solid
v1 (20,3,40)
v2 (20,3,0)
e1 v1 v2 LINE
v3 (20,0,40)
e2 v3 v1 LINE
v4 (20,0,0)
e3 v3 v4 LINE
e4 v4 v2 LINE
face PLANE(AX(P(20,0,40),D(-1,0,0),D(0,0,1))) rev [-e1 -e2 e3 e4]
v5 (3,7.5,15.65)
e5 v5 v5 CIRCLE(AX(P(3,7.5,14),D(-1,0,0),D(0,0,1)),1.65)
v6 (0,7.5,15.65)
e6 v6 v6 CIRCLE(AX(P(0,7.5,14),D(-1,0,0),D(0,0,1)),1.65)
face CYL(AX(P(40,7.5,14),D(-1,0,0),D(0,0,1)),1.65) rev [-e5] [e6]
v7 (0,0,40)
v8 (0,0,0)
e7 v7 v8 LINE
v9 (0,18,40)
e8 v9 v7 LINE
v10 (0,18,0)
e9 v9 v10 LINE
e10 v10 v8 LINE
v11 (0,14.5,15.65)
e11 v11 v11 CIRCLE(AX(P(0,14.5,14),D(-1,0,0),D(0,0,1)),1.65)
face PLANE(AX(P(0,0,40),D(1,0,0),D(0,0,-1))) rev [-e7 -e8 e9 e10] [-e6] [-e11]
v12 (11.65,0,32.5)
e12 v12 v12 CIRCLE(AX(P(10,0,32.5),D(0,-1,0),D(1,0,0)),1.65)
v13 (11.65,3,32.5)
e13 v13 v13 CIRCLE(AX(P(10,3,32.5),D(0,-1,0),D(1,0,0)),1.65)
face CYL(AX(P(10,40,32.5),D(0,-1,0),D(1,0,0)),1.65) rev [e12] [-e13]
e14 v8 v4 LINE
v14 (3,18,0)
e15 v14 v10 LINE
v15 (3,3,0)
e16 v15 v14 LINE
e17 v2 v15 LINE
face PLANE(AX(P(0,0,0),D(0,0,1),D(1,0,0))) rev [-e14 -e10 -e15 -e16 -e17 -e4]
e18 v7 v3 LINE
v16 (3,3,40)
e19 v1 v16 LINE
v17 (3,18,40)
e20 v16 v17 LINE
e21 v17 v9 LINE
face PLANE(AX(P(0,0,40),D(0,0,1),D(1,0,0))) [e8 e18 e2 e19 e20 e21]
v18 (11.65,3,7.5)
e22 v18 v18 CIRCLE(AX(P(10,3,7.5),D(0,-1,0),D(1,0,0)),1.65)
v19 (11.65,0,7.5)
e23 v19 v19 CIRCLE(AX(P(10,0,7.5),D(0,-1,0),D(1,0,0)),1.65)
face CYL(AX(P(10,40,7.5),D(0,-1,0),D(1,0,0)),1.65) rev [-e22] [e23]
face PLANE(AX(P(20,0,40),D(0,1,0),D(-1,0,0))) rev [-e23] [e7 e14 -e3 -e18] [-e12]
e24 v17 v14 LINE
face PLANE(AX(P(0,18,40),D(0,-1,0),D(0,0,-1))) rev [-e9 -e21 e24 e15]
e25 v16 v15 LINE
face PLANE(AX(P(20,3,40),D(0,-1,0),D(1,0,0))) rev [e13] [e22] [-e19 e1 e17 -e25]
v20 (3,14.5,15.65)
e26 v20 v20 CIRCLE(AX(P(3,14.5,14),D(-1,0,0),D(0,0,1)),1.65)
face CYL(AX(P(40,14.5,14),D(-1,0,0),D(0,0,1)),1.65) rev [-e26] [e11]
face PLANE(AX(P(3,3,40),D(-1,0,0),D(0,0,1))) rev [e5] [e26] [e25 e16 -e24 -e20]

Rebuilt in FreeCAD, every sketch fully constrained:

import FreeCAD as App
import Part
import Sketcher

V = App.Vector
Q = App.Units.Quantity


def add_polygon(sketch, points):
    """Adds a closed chain of lines whose ends are joined by coincident constraints."""
    first, n = sketch.GeometryCount, len(points)
    for a, b in zip(points, points[1:] + points[:1]):
        sketch.addGeometry(Part.LineSegment(App.Vector(*a, 0), App.Vector(*b, 0)), False)
    for i in range(n):
        sketch.addConstraint(Sketcher.Constraint("Coincident", first + i, 2, first + (i + 1) % n, 1))

doc = App.newDocument("Part")
body = doc.addObject("PartDesign::Body", "Body")

sketch1 = doc.addObject("Sketcher::SketchObject", "Sketch")
body.addObject(sketch1)
sketch1.AttachmentSupport = (doc.XY_Plane, [""])
sketch1.MapMode = "FlatFace"
add_polygon(sketch1, [(0, 0), (20, 0), (20, 3), (3, 3), (3, 18), (0, 18)])
sketch1.addConstraint([
    Sketcher.Constraint("Horizontal", 0),
    Sketcher.Constraint("Vertical", 1),
    Sketcher.Constraint("Horizontal", 2),
    Sketcher.Constraint("Vertical", 3),
    Sketcher.Constraint("Horizontal", 4),
    Sketcher.Constraint("Vertical", 5),
    Sketcher.Constraint("Coincident", 5, 2, -1, 1),
    Sketcher.Constraint("Equal", 4, 1),
    Sketcher.Constraint("DistanceX", 0, 1, 0, 2, Q("20 mm")),
    Sketcher.Constraint("DistanceX", 2, 2, 2, 1, Q("17 mm")),
    Sketcher.Constraint("DistanceY", 3, 1, 3, 2, Q("15 mm")),
])
pad1 = doc.addObject("PartDesign::Pad", "Pad")
body.addObject(pad1)
pad1.Profile = sketch1
pad1.Length = 40

sketch2 = doc.addObject("Sketcher::SketchObject", "Sketch001")
body.addObject(sketch2)
sketch2.AttachmentSupport = (doc.XZ_Plane, [""])
sketch2.MapMode = "FlatFace"
sketch2.addGeometry([
    Part.Circle(V(10, 7.5, 0), V(0, 0, 1), 1.65),
    Part.Circle(V(10, 32.5, 0), V(0, 0, 1), 1.65),
], False)
sketch2.addConstraint([
    Sketcher.Constraint("Equal", 0, 1),
    Sketcher.Constraint("Vertical", 0, 3, 1, 3),
    Sketcher.Constraint("Diameter", 0, Q("3.3 mm")),
    Sketcher.Constraint("DistanceX", -1, 1, 0, 3, Q("10 mm")),
    Sketcher.Constraint("DistanceY", 0, 3, 1, 3, Q("25 mm")),
    Sketcher.Constraint("DistanceY", -1, 1, 0, 3, Q("7.5 mm")),
])
pocket1 = doc.addObject("PartDesign::Pocket", "Pocket")
body.addObject(pocket1)
pocket1.Profile = sketch2
pocket1.Length = 40

sketch3 = doc.addObject("Sketcher::SketchObject", "Sketch002")
body.addObject(sketch3)
sketch3.AttachmentSupport = (doc.YZ_Plane, [""])
sketch3.MapMode = "FlatFace"
sketch3.addGeometry([
    Part.Circle(V(7.5, 14, 0), V(0, 0, 1), 1.65),
    Part.Circle(V(14.5, 14, 0), V(0, 0, 1), 1.65),
], False)
sketch3.addConstraint([
    Sketcher.Constraint("Equal", 0, 1),
    Sketcher.Constraint("Horizontal", 0, 3, 1, 3),
    Sketcher.Constraint("Diameter", 0, Q("3.3 mm")),
    Sketcher.Constraint("DistanceY", -1, 1, 0, 3, Q("14 mm")),
    Sketcher.Constraint("DistanceX", 0, 3, 1, 3, Q("7 mm")),
    Sketcher.Constraint("DistanceX", -1, 1, 0, 3, Q("7.5 mm")),
])
pocket2 = doc.addObject("PartDesign::Pocket", "Pocket001")
body.addObject(pocket2)
pocket2.Profile = sketch3
pocket2.Length = 40
pocket2.Reversed = True

doc.recompute()
